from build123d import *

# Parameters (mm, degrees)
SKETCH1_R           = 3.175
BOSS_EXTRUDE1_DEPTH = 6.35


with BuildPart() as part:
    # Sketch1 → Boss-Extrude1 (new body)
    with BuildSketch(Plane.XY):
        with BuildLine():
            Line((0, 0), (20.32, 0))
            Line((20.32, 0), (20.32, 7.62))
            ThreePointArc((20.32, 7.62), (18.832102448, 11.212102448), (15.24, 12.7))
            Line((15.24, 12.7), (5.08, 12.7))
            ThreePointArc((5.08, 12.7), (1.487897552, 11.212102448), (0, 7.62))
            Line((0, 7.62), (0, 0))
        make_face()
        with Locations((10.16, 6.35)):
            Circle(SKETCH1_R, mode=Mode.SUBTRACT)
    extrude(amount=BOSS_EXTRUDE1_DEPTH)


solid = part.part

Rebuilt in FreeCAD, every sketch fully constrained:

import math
import FreeCAD as App
import Part
import Sketcher

V = App.Vector
Q = App.Units.Quantity

doc = App.newDocument("Part")
body = doc.addObject("PartDesign::Body", "Body")

# Sketch on XY plane
sketch1 = doc.addObject("Sketcher::SketchObject", "Sketch")
body.addObject(sketch1)
sketch1.AttachmentSupport = (doc.XY_Plane, [""])
sketch1.MapMode = "FlatFace"
sketch1.addGeometry([
    Part.LineSegment(V(0, 0, 0), V(20.32, 0, 0)),  # 0
    Part.LineSegment(V(20.32, 0, 0), V(20.32, 7.62, 0)),  # 1
    Part.ArcOfCircle(Part.Circle(V(15.24, 7.62, 0), V(0, 0, 1), 5.08), math.radians(0), math.radians(90)),  # 2
    Part.LineSegment(V(15.24, 12.7, 0), V(5.08, 12.7, 0)),  # 3
    Part.ArcOfCircle(Part.Circle(V(5.08, 7.62, 0), V(0, 0, 1), 5.08), math.radians(90), math.radians(180)),  # 4
    Part.LineSegment(V(0, 7.62, 0), V(0, 0, 0)),  # 5
    Part.Circle(V(10.16, 6.35, 0), V(0, 0, 1), 3.175),  # 6
], False)
sketch1.addConstraint([
    Sketcher.Constraint("Coincident", 0, 2, 1, 1),
    Sketcher.Constraint("Tangent", 1, 2, 2, 1),
    Sketcher.Constraint("Tangent", 2, 2, 3, 1),
    Sketcher.Constraint("Tangent", 3, 2, 4, 1),
    Sketcher.Constraint("Tangent", 4, 2, 5, 1),
    Sketcher.Constraint("Coincident", 5, 2, 0, 1),
    Sketcher.Constraint("Horizontal", 0),
    Sketcher.Constraint("Vertical", 1),
    Sketcher.Constraint("Horizontal", 3),
    Sketcher.Constraint("Vertical", 5),
    Sketcher.Constraint("Coincident", 5, 2, -1, 1),
    Sketcher.Constraint("Equal", 2, 4),
    Sketcher.Constraint("Radius", 2, Q("0.2 in")),
    Sketcher.Constraint("Diameter", 6, Q("0.25 in")),
    Sketcher.Constraint("DistanceX", 0, 1, 0, 2, Q("0.8 in")),
    Sketcher.Constraint("DistanceY", 1, 1, 1, 2, Q("0.3 in")),
    Sketcher.Constraint("DistanceX", -1, 1, 6, 3, Q("0.4 in")),
    Sketcher.Constraint("DistanceY", -1, 1, 6, 3, Q("0.25 in")),
])
pad1 = doc.addObject("PartDesign::Pad", "Pad")
body.addObject(pad1)
pad1.Profile = sketch1
pad1.Length = Q("0.25 in")

doc.recompute()
